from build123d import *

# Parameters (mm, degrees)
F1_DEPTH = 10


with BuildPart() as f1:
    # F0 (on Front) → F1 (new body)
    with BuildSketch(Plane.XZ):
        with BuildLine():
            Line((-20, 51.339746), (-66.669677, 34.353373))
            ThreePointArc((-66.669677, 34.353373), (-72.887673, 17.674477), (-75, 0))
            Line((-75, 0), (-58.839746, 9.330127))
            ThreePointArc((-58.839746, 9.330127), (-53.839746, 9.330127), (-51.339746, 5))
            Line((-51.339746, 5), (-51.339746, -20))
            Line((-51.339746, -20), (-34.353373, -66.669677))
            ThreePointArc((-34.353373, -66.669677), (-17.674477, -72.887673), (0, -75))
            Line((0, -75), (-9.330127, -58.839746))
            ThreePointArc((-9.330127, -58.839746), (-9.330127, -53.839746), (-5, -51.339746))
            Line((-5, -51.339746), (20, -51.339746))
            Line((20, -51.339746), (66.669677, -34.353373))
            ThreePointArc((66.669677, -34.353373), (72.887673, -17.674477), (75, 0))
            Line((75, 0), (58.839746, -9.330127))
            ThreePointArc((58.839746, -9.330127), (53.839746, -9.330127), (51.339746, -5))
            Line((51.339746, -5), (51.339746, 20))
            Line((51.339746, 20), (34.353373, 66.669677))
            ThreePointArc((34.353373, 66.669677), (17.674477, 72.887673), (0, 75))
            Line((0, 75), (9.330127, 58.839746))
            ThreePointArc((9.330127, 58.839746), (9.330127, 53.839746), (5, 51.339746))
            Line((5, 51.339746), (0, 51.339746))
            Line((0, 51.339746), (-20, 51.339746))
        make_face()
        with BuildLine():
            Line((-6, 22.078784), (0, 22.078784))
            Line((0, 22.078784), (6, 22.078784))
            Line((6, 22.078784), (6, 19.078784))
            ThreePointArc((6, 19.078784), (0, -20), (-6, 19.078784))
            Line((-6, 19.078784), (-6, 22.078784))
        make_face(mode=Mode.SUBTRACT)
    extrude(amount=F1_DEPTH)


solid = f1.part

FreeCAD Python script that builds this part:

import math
import FreeCAD as App
import Part
import Sketcher

V = App.Vector
Q = App.Units.Quantity

doc = App.newDocument("Part")
params = doc.addObject("Spreadsheet::Sheet", "Params")
for row, (alias, value) in enumerate([
    ("sketch1_radius", "5 mm"),
    ("sketch1_radius2", "20 mm"),
    ("sketch1_width", "25 mm"),
    ("sketch1_width2", "12 mm"),
    ("sketch1_height", "3 mm"),
    ("pad1_length", "10 mm"),
], start=1):
    params.set(f"A{row}", alias)
    params.set(f"B{row}", "=" + value)
    params.setAlias(f"B{row}", alias)

body = doc.addObject("PartDesign::Body", "Body")

# Sketch on XZ plane
sketch1 = body.newObject("Sketcher::SketchObject", "Sketch")
sketch1.AttachmentSupport = (doc.getObject("XZ_Plane"), [""])
sketch1.MapMode = "FlatFace"
sketch1.addGeometry([
    Part.LineSegment(V(-20, 51.3, 0), V(-66.7, 34.4, 0)),  # 0
    Part.ArcOfCircle(Part.Circle(V(0, 0, 0), V(0, 0, 1), 75), math.radians(153), math.radians(180)),  # 1
    Part.LineSegment(V(-75, 0, 0), V(-58.8, 9.3, 0)),  # 2
    Part.ArcOfCircle(Part.Circle(V(-56.3, 5, 0), V(0, 0, 1), 5), math.radians(0), math.radians(120)),  # 3
    Part.LineSegment(V(-51.3, 5, 0), V(-51.3, -20, 0)),  # 4
    Part.LineSegment(V(-51.3, -20, 0), V(-34.4, -66.7, 0)),  # 5
    Part.ArcOfCircle(Part.Circle(V(0, 0, 0), V(0, 0, 1), 75), math.radians(-117), math.radians(-90)),  # 6
    Part.LineSegment(V(0, -75, 0), V(-9.3, -58.8, 0)),  # 7
    Part.ArcOfCircle(Part.Circle(V(-5, -56.3, 0), V(0, 0, 1), 5), math.radians(90), math.radians(210)),  # 8
    Part.LineSegment(V(-5, -51.3, 0), V(20, -51.3, 0)),  # 9
    Part.LineSegment(V(20, -51.3, 0), V(66.7, -34.4, 0)),  # 10
    Part.ArcOfCircle(Part.Circle(V(0, 0, 0), V(0, 0, 1), 75), math.radians(-27), math.radians(0)),  # 11
    Part.LineSegment(V(75, 0, 0), V(58.8, -9.3, 0)),  # 12
    Part.ArcOfCircle(Part.Circle(V(56.3, -5, 0), V(0, 0, 1), 5), math.radians(-180), math.radians(-60)),  # 13
    Part.LineSegment(V(51.3, -5, 0), V(51.3, 20, 0)),  # 14
    Part.LineSegment(V(51.3, 20, 0), V(34.4, 66.7, 0)),  # 15
    Part.ArcOfCircle(Part.Circle(V(0, 0, 0), V(0, 0, 1), 75), math.radians(63), math.radians(90)),  # 16
    Part.LineSegment(V(0, 75, 0), V(9.3, 58.8, 0)),  # 17
    Part.ArcOfCircle(Part.Circle(V(5, 56.3, 0), V(0, 0, 1), 5), math.radians(-90), math.radians(30)),  # 18
    Part.LineSegment(V(5, 51.3, 0), V(-20, 51.3, 0)),  # 19
    Part.LineSegment(V(-6, 19.1, 0), V(-6, 22.1, 0)),  # 20
    Part.LineSegment(V(-6, 22.1, 0), V(6, 22.1, 0)),  # 21
    Part.LineSegment(V(6, 22.1, 0), V(6, 19.1, 0)),  # 22
    Part.ArcOfCircle(Part.Circle(V(0, 0, 0), V(0, 0, 1), 20), math.radians(107), math.radians(433)),  # 23
], False)
sketch1.addConstraint([
    Sketcher.Constraint("Coincident", 0, 2, 1, 1),
    Sketcher.Constraint("Coincident", 1, 2, 2, 1),
    Sketcher.Constraint("Tangent", 2, 2, 3, 2),
    Sketcher.Constraint("Tangent", 3, 1, 4, 1),
    Sketcher.Constraint("Coincident", 4, 2, 5, 1),
    Sketcher.Constraint("Coincident", 5, 2, 6, 1),
    Sketcher.Constraint("Coincident", 6, 2, 7, 1),
    Sketcher.Constraint("Tangent", 7, 2, 8, 2),
    Sketcher.Constraint("Tangent", 8, 1, 9, 1),
    Sketcher.Constraint("Coincident", 9, 2, 10, 1),
    Sketcher.Constraint("Coincident", 10, 2, 11, 1),
    Sketcher.Constraint("Coincident", 11, 2, 12, 1),
    Sketcher.Constraint("Tangent", 12, 2, 13, 2),
    Sketcher.Constraint("Tangent", 13, 1, 14, 1),
    Sketcher.Constraint("Coincident", 14, 2, 15, 1),
    Sketcher.Constraint("Coincident", 15, 2, 16, 1),
    Sketcher.Constraint("Coincident", 16, 2, 17, 1),
    Sketcher.Constraint("Tangent", 17, 2, 18, 2),
    Sketcher.Constraint("Tangent", 18, 1, 19, 1),
    Sketcher.Constraint("Coincident", 19, 2, 0, 1),
    Sketcher.Constraint("Coincident", 20, 2, 21, 1),
    Sketcher.Constraint("Coincident", 21, 2, 22, 1),
    Sketcher.Constraint("Coincident", 22, 2, 23, 2),
    Sketcher.Constraint("Coincident", 23, 1, 20, 1),
    Sketcher.Constraint("Vertical", 4),
    Sketcher.Constraint("Horizontal", 9),
    Sketcher.Constraint("Vertical", 14),
    Sketcher.Constraint("Horizontal", 19),
    Sketcher.Constraint("Vertical", 20),
    Sketcher.Constraint("Horizontal", 21),
    Sketcher.Constraint("Vertical", 22),
    Sketcher.Constraint("Coincident", 1, 3, -1, 1),
    Sketcher.Constraint("Coincident", 6, 3, -1, 1),
    Sketcher.Constraint("Coincident", 11, 3, -1, 1),
    Sketcher.Constraint("Coincident", 16, 3, -1, 1),
    Sketcher.Constraint("Coincident", 23, 3, -1, 1),
    Sketcher.Constraint("Equal", 1, 6),
    Sketcher.Constraint("Equal", 3, 8),
    Sketcher.Constraint("Equal", 6, 11),
    Sketcher.Constraint("Equal", 8, 13),
    Sketcher.Constraint("Equal", 11, 16),
    Sketcher.Constraint("Equal", 13, 18),
    Sketcher.Constraint("Symmetric", 3, 3, 13, 3, -1, 1),
    Sketcher.Constraint("Symmetric", 8, 3, 18, 3, -1, 1),
    Sketcher.Constraint("PointOnObject", 1, 2, -1),
    Sketcher.Constraint("PointOnObject", 6, 2, -2),
    Sketcher.Constraint("PointOnObject", 11, 2, -1),
    Sketcher.Constraint("PointOnObject", 16, 2, -2),
    Sketcher.Constraint("Perpendicular", 0, 5),
    Sketcher.Constraint("Perpendicular", 2, 7),
    Sketcher.Constraint("Perpendicular", 5, 10),
    Sketcher.Constraint("Perpendicular", 10, 15),
    Sketcher.Constraint("Horizontal", 22, 2, 23, 1),
    Sketcher.Constraint("Equal", 9, 19),
    Sketcher.Constraint("Equal", 19, 4),
    Sketcher.Constraint("Equal", 4, 14),
    Sketcher.Constraint("Equal", 0, 5),
    Sketcher.Constraint("Radius", 3, Q("5 mm")),
    Sketcher.Constraint("Radius", 23, Q("20 mm")),
    Sketcher.Constraint("DistanceX", 9, 1, 9, 2, Q("25 mm")),
    Sketcher.Constraint("DistanceX", 21, 1, 21, 2, Q("12 mm")),
    Sketcher.Constraint("DistanceY", 20, 1, 20, 2, Q("3 mm")),
    Sketcher.Constraint("Angle", 0, Q("-160 deg")),
    Sketcher.Constraint("Angle", 2, Q("30 deg")),
    Sketcher.Constraint("DistanceY", -1, 1, 3, 3, Q("5 mm")),
    Sketcher.Constraint("DistanceX", 1, 2, -1, 1, Q("75 mm")),
])
sketch1.setExpression("Constraints[57]", "Params.sketch1_radius")
sketch1.setExpression("Constraints[58]", "Params.sketch1_radius2")
sketch1.setExpression("Constraints[59]", "Params.sketch1_width")
sketch1.setExpression("Constraints[60]", "Params.sketch1_width2")
sketch1.setExpression("Constraints[61]", "Params.sketch1_height")
pad1 = body.newObject("PartDesign::Pad", "Pad")
pad1.Profile = sketch1
pad1.setExpression("Length", "Params.pad1_length")

doc.recompute()
